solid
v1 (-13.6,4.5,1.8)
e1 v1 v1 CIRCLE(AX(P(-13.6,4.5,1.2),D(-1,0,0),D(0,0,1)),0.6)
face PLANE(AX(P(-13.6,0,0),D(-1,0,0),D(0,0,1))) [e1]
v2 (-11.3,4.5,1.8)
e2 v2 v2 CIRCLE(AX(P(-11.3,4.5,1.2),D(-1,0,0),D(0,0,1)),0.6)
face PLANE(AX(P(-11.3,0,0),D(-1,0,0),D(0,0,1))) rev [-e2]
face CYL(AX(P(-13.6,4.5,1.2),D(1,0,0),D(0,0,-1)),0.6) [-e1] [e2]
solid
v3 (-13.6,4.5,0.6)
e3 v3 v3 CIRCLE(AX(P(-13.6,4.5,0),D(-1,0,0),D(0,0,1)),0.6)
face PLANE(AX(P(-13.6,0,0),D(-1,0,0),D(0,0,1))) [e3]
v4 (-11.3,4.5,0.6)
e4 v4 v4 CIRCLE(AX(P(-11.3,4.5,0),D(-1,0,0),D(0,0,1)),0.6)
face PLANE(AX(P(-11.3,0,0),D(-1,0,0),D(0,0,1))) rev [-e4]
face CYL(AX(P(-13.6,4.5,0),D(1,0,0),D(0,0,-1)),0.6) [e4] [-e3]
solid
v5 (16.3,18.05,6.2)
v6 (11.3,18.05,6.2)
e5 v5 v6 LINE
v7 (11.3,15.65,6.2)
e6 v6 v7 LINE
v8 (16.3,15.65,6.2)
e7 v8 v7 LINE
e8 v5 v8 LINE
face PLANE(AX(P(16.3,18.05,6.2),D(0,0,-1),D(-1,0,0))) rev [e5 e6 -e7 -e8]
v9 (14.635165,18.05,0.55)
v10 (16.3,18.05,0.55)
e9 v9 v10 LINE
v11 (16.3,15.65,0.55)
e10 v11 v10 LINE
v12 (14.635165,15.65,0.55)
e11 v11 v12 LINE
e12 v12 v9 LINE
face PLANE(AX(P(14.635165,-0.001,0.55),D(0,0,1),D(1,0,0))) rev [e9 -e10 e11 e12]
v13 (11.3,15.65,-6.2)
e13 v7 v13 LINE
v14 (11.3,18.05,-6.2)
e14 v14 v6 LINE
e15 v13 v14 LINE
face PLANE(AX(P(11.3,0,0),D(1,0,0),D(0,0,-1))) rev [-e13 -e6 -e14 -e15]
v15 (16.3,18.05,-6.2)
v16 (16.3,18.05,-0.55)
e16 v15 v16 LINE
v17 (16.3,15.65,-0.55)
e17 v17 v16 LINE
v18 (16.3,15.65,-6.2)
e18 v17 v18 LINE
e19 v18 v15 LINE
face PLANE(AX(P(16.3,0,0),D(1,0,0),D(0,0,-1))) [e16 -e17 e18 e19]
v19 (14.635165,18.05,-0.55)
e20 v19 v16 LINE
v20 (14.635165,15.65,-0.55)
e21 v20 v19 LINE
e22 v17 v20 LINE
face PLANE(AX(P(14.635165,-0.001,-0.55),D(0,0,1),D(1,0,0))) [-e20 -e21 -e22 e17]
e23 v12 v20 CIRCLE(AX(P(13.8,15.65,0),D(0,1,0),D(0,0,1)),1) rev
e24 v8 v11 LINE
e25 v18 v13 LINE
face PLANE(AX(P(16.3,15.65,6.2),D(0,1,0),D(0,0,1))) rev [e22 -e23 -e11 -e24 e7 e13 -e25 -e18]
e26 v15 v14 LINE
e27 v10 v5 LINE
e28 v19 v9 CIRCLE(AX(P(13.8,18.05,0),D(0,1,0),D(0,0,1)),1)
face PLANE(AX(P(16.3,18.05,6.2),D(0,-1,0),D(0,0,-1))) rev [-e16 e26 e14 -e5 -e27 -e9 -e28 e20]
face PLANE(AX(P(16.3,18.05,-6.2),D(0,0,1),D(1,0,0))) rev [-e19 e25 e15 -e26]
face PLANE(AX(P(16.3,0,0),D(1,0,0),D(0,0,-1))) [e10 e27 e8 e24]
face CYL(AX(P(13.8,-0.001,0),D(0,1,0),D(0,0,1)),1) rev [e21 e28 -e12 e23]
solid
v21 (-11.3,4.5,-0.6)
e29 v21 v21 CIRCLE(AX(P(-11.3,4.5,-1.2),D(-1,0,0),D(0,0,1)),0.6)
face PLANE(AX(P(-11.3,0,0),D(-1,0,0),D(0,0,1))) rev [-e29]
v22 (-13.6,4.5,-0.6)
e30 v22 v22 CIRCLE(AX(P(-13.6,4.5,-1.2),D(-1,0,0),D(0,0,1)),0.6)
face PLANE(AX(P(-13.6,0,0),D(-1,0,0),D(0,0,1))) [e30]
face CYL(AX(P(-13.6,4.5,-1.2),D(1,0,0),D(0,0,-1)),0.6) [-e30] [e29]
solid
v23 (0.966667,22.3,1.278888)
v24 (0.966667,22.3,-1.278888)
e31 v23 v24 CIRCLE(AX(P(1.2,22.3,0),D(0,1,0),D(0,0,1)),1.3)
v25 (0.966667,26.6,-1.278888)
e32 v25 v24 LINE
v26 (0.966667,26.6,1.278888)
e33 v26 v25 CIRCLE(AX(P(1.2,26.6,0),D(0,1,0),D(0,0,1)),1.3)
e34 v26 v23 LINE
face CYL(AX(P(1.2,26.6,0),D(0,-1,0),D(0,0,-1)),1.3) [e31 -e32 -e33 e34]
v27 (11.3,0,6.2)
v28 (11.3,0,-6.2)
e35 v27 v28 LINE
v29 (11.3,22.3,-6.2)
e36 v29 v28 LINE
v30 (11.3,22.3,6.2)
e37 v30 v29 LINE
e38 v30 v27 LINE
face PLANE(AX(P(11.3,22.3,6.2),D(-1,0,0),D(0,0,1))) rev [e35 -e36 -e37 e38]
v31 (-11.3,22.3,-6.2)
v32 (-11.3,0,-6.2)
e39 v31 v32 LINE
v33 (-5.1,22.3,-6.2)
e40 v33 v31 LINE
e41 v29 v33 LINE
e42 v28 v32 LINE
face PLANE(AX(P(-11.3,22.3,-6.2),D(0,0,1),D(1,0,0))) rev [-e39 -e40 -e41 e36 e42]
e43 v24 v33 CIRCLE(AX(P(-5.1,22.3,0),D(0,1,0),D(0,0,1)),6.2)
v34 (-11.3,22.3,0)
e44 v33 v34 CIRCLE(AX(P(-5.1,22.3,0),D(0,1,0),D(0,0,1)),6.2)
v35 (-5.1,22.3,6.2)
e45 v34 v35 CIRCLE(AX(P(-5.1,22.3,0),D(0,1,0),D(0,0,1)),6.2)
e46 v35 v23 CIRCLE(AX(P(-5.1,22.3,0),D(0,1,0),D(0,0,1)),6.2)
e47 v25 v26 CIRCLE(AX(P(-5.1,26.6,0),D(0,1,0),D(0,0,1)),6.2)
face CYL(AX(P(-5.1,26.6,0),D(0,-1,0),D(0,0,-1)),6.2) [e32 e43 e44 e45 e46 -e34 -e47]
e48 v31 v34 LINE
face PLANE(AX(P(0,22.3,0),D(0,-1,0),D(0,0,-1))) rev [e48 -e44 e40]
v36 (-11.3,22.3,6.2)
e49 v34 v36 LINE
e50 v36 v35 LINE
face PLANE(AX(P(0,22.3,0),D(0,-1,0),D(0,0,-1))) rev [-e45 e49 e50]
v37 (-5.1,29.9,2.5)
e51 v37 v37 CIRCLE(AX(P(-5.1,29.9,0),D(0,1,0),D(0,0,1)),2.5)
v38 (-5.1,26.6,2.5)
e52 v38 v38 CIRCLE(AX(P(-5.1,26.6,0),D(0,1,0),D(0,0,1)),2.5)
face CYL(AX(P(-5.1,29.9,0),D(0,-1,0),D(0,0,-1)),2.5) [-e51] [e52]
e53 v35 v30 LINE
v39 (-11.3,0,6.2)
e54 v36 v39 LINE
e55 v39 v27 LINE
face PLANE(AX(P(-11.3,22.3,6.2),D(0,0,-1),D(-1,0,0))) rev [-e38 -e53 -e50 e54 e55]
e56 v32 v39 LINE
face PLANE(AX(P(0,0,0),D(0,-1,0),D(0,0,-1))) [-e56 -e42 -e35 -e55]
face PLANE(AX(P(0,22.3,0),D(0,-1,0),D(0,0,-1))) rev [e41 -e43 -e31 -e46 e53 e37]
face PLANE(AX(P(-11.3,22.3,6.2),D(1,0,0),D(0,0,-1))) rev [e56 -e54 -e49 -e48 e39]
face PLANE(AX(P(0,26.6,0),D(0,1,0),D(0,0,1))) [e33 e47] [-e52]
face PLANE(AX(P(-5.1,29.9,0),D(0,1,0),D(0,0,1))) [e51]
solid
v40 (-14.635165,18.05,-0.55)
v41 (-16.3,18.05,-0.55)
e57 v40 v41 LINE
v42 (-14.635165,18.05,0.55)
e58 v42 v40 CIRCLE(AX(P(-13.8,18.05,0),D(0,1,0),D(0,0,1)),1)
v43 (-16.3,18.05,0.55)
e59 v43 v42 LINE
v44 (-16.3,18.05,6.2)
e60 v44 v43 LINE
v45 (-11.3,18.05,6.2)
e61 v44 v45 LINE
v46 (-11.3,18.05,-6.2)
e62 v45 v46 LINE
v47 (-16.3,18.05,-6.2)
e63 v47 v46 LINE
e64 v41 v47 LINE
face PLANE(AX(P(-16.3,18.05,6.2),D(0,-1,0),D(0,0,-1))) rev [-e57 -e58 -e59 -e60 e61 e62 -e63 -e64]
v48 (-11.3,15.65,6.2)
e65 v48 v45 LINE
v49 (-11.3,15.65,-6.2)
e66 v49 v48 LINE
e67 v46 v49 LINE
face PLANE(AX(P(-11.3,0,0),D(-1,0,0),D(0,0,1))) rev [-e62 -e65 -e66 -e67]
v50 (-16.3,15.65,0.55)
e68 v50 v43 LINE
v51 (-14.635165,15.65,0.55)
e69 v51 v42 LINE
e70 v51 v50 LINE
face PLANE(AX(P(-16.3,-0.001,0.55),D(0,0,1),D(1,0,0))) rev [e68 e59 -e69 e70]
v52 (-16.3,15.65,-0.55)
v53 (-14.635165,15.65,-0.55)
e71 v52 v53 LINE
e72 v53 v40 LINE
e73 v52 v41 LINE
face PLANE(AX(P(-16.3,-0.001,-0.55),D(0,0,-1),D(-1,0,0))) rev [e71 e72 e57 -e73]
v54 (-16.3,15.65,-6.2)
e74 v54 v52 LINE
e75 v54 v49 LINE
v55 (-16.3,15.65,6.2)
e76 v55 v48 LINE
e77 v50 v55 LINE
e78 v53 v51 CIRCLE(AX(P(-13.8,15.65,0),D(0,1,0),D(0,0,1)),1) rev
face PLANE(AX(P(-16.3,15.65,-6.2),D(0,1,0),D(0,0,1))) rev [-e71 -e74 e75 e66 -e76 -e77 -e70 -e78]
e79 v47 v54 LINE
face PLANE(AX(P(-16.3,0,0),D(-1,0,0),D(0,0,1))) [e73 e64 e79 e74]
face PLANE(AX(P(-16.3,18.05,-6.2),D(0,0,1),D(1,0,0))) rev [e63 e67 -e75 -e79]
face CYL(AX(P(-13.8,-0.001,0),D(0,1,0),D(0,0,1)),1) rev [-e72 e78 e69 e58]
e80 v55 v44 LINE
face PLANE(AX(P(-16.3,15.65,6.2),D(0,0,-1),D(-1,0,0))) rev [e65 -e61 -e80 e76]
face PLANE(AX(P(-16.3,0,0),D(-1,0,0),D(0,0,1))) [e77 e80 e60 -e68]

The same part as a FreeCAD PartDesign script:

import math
import FreeCAD as App
import Part
import Sketcher

V = App.Vector
Q = App.Units.Quantity


def add_polygon(sketch, points):
    """Adds a closed chain of lines whose ends are joined by coincident constraints."""
    first, n = sketch.GeometryCount, len(points)
    for a, b in zip(points, points[1:] + points[:1]):
        sketch.addGeometry(Part.LineSegment(App.Vector(*a, 0), App.Vector(*b, 0)), False)
    for i in range(n):
        sketch.addConstraint(Sketcher.Constraint("Coincident", first + i, 2, first + (i + 1) % n, 1))

doc = App.newDocument("Part")
body = doc.addObject("PartDesign::Body", "Body")

# Sketch on XZ plane
sketch1 = body.newObject("Sketcher::SketchObject", "Sketch")
sketch1.AttachmentSupport = (doc.getObject("XZ_Plane"), [""])
sketch1.MapMode = "FlatFace"
add_polygon(sketch1, [(-11, -6), (-11, 6), (11, 6), (11, -6)])  # lines 0-3
sketch1.addConstraint([
    Sketcher.Constraint("Vertical", 0),
    Sketcher.Constraint("Horizontal", 1),
    Sketcher.Constraint("Vertical", 2),
    Sketcher.Constraint("Horizontal", 3),
    Sketcher.Constraint("Symmetric", 0, 2, 2, 2, -1, 1),
    Sketcher.Constraint("DistanceX", 1, 1, 1, 2, Q("22.6 mm")),
    Sketcher.Constraint("DistanceY", 0, 1, 0, 2, Q("12.4 mm")),
])
pad1 = body.newObject("PartDesign::Pad", "Pad")
pad1.Profile = sketch1
pad1.Length = 22.3
pad1.Reversed = True

# Sketch on XZ plane
sketch2 = body.newObject("Sketcher::SketchObject", "Sketch001")
sketch2.AttachmentSupport = (doc.getObject("XZ_Plane"), [""])
sketch2.MapMode = "FlatFace"
sketch2.AttachmentOffset = App.Placement(V(0, 0, -22.3), App.Rotation())
sketch2.addGeometry([
    Part.ArcOfCircle(Part.Circle(V(1.2, 0, 0), V(0, 0, 1), 1.3), math.radians(-100), math.radians(100)),
    Part.ArcOfCircle(Part.Circle(V(-5.1, 0, 0), V(0, 0, 1), 6.2), math.radians(12), math.radians(348)),
], False)
sketch2.addConstraint([
    Sketcher.Constraint("Coincident", 0, 1, 1, 2),
    Sketcher.Constraint("Coincident", 1, 1, 0, 2),
    Sketcher.Constraint("Symmetric", 0, 1, 1, 1, -1),
    Sketcher.Constraint("Radius", 0, Q("1.3 mm")),
    Sketcher.Constraint("Radius", 1, Q("6.2 mm")),
    Sketcher.Constraint("DistanceX", -1, 1, 0, 3, Q("1.2 mm")),
    Sketcher.Constraint("DistanceX", 1, 3, -1, 1, Q("5.1 mm")),
])
pad2 = body.newObject("PartDesign::Pad", "Pad001")
pad2.Profile = sketch2
pad2.Length = 4.3
pad2.Reversed = True

# Sketch on XZ plane
sketch3 = body.newObject("Sketcher::SketchObject", "Sketch002")
sketch3.AttachmentSupport = (doc.getObject("XZ_Plane"), [""])
sketch3.MapMode = "FlatFace"
sketch3.AttachmentOffset = App.Placement(V(0, 0, -26.6), App.Rotation())
sketch3.addGeometry(Part.Circle(V(-5.1, 0, 0), V(0, 0, 1), 2.5), False)
sketch3.addConstraint([
    Sketcher.Constraint("PointOnObject", 0, 3, -1),
    Sketcher.Constraint("Diameter", 0, Q("5 mm")),
    Sketcher.Constraint("DistanceX", 0, 3, -1, 1, Q("5.1 mm")),
])
pad3 = body.newObject("PartDesign::Pad", "Pad002")
pad3.Profile = sketch3
pad3.Length = 3.3
pad3.Reversed = True
body2 = doc.addObject("PartDesign::Body", "Body001")

# Sketch on YZ plane
sketch4 = body2.newObject("Sketcher::SketchObject", "Sketch003")
sketch4.AttachmentSupport = (doc.getObject("YZ_Plane001"), [""])
sketch4.MapMode = "FlatFace"
sketch4.AttachmentOffset = App.Placement(V(0, 0, 11.3), App.Rotation())
add_polygon(sketch4, [(18.1, 6.2), (15.7, 6.2), (15.7, -6.2), (18.1, -6.2)])  # lines 0-3
sketch4.addConstraint([
    Sketcher.Constraint("Horizontal", 0),
    Sketcher.Constraint("Vertical", 1),
    Sketcher.Constraint("Horizontal", 2),
    Sketcher.Constraint("Vertical", 3),
    Sketcher.Constraint("DistanceX", 0, 2, 0, 1, Q("2.4 mm")),
    Sketcher.Constraint("DistanceY", 1, 2, 1, 1, Q("12.4 mm")),
    Sketcher.Constraint("DistanceY", -1, 1, 0, 2, Q("6.2 mm")),
    Sketcher.Constraint("DistanceX", -1, 1, 0, 2, Q("15.65 mm")),
])
pad4 = body2.newObject("PartDesign::Pad", "Pad003")
pad4.Profile = sketch4
pad4.Length = 5

# Sketch on XZ plane
sketch5 = body2.newObject("Sketcher::SketchObject", "Sketch004")
sketch5.AttachmentSupport = (doc.getObject("XZ_Plane001"), [""])
sketch5.MapMode = "FlatFace"
sketch5.AttachmentOffset = App.Placement(V(0, 0, -18.05), App.Rotation())
sketch5.addGeometry([
    Part.LineSegment(V(16.3, -0.6, 0), V(14.6, -0.6, 0)),
    Part.ArcOfCircle(Part.Circle(V(13.8, 0, 0), V(0, 0, 1), 1), math.radians(33), math.radians(327)),
    Part.LineSegment(V(14.6, 0.6, 0), V(16.3, 0.6, 0)),
    Part.LineSegment(V(16.3, 0.6, 0), V(16.3, -0.6, 0)),
], False)
sketch5.addConstraint([
    Sketcher.Constraint("Coincident", 0, 2, 1, 2),
    Sketcher.Constraint("Coincident", 1, 1, 2, 1),
    Sketcher.Constraint("Coincident", 2, 2, 3, 1),
    Sketcher.Constraint("Coincident", 3, 2, 0, 1),
    Sketcher.Constraint("Horizontal", 0),
    Sketcher.Constraint("Horizontal", 2),
    Sketcher.Constraint("Vertical", 3),
    Sketcher.Constraint("Symmetric", 0, 2, 1, 1, -1),
    Sketcher.Constraint("Radius", 1, Q("1 mm")),
    Sketcher.Constraint("DistanceY", 3, 2, 3, 1, Q("1.1 mm")),
    Sketcher.Constraint("DistanceX", -1, 1, 1, 3, Q("13.8 mm")),
    Sketcher.Constraint("DistanceX", -1, 1, 2, 2, Q("16.3 mm")),
])
pocket1 = body2.newObject("PartDesign::Pocket", "Pocket")
pocket1.Profile = sketch5
pocket1.Length = 2.4
pocket1.Reversed = True
body3 = doc.addObject("PartDesign::Body", "Body002")

# Sketch on YZ plane
sketch6 = body3.newObject("Sketcher::SketchObject", "Sketch005")
sketch6.AttachmentSupport = (doc.getObject("YZ_Plane002"), [""])
sketch6.MapMode = "FlatFace"
sketch6.AttachmentOffset = App.Placement(V(0, 0, -11.3), App.Rotation())
add_polygon(sketch6, [(18.1, -6.2), (15.7, -6.2), (15.7, 6.2), (18.1, 6.2)])  # lines 0-3
sketch6.addConstraint([
    Sketcher.Constraint("Horizontal", 0),
    Sketcher.Constraint("Vertical", 1),
    Sketcher.Constraint("Horizontal", 2),
    Sketcher.Constraint("Vertical", 3),
    Sketcher.Constraint("DistanceX", 0, 2, 0, 1, Q("2.4 mm")),
    Sketcher.Constraint("DistanceY", 1, 1, 1, 2, Q("12.4 mm")),
    Sketcher.Constraint("DistanceY", 0, 2, -1, 1, Q("6.2 mm")),
    Sketcher.Constraint("DistanceX", -1, 1, 0, 2, Q("15.65 mm")),
])
pad5 = body3.newObject("PartDesign::Pad", "Pad004")
pad5.Profile = sketch6
pad5.Length = 5
pad5.Reversed = True

# Sketch on XZ plane
sketch7 = body3.newObject("Sketcher::SketchObject", "Sketch006")
sketch7.AttachmentSupport = (doc.getObject("XZ_Plane002"), [""])
sketch7.MapMode = "FlatFace"
sketch7.AttachmentOffset = App.Placement(V(0, 0, -18.05), App.Rotation())
sketch7.addGeometry([
    Part.LineSegment(V(-14.6, -0.6, 0), V(-16.3, -0.6, 0)),  # 0
    Part.LineSegment(V(-16.3, -0.6, 0), V(-16.3, 0.6, 0)),  # 1
    Part.LineSegment(V(-16.3, 0.6, 0), V(-14.6, 0.6, 0)),  # 2
    Part.ArcOfCircle(Part.Circle(V(-13.8, 0, 0), V(0, 0, 1), 1), math.radians(-147), math.radians(147)),  # 3
    Part.LineSegment(V(14.6, 0.6, 0), V(16.3, 0.6, 0)),  # 4
    Part.LineSegment(V(16.3, 0.6, 0), V(16.3, -0.6, 0)),  # 5
    Part.LineSegment(V(16.3, -0.6, 0), V(14.6, -0.6, 0)),  # 6
    Part.ArcOfCircle(Part.Circle(V(13.8, 0, 0), V(0, 0, 1), 1), math.radians(33), math.radians(327)),  # 7
], False)
sketch7.addConstraint([
    Sketcher.Constraint("Coincident", 0, 2, 1, 1),
    Sketcher.Constraint("Coincident", 1, 2, 2, 1),
    Sketcher.Constraint("Coincident", 2, 2, 3, 2),
    Sketcher.Constraint("Coincident", 3, 1, 0, 1),
    Sketcher.Constraint("Coincident", 4, 2, 5, 1),
    Sketcher.Constraint("Coincident", 5, 2, 6, 1),
    Sketcher.Constraint("Coincident", 6, 2, 7, 2),
    Sketcher.Constraint("Coincident", 7, 1, 4, 1),
    Sketcher.Constraint("Horizontal", 0),
    Sketcher.Constraint("Vertical", 1),
    Sketcher.Constraint("Horizontal", 2),
    Sketcher.Constraint("Horizontal", 4),
    Sketcher.Constraint("Vertical", 5),
    Sketcher.Constraint("Horizontal", 6),
    Sketcher.Constraint("Equal", 3, 7),
    Sketcher.Constraint("Symmetric", 3, 3, 7, 3, -1, 1),
    Sketcher.Constraint("Symmetric", 0, 2, 4, 2, -1, 1),
    Sketcher.Constraint("Symmetric", 3, 1, 6, 2, -2),
    Sketcher.Constraint("Horizontal", 2, 2, 4, 2),
    Sketcher.Constraint("Radius", 3, Q("1 mm")),
    Sketcher.Constraint("DistanceY", 1, 1, 1, 2, Q("1.1 mm")),
    Sketcher.Constraint("DistanceX", 3, 3, -1, 1, Q("13.8 mm")),
    Sketcher.Constraint("DistanceX", 0, 2, -1, 1, Q("16.3 mm")),
])
pocket2 = body3.newObject("PartDesign::Pocket", "Pocket001")
pocket2.Profile = sketch7
pocket2.Length = 2.4
pocket2.Reversed = True
body4 = doc.addObject("PartDesign::Body", "Body003")

# Sketch on YZ plane
sketch8 = body4.newObject("Sketcher::SketchObject", "Sketch007")
sketch8.AttachmentSupport = (doc.getObject("YZ_Plane003"), [""])
sketch8.MapMode = "FlatFace"
sketch8.AttachmentOffset = App.Placement(V(0, 0, -11.3), App.Rotation())
sketch8.addGeometry(Part.Circle(V(4.5, 0, 0), V(0, 0, 1), 0.6), False)
sketch8.addConstraint([
    Sketcher.Constraint("PointOnObject", 0, 3, -1),
    Sketcher.Constraint("Diameter", 0, Q("1.2 mm")),
    Sketcher.Constraint("DistanceX", -1, 1, 0, 3, Q("4.5 mm")),
])
pad6 = body4.newObject("PartDesign::Pad", "Pad005")
pad6.Profile = sketch8
pad6.Length = 2.3
pad6.Reversed = True
body5 = doc.addObject("PartDesign::Body", "Body004")

# Sketch on YZ plane
sketch9 = body5.newObject("Sketcher::SketchObject", "Sketch008")
sketch9.AttachmentSupport = (doc.getObject("YZ_Plane004"), [""])
sketch9.MapMode = "FlatFace"
sketch9.AttachmentOffset = App.Placement(V(0, 0, -11.3), App.Rotation())
sketch9.addGeometry(Part.Circle(V(4.5, -1.2, 0), V(0, 0, 1), 0.6), False)
sketch9.addConstraint([
    Sketcher.Constraint("Diameter", 0, Q("1.2 mm")),
    Sketcher.Constraint("DistanceX", -1, 1, 0, 3, Q("4.5 mm")),
    Sketcher.Constraint("DistanceY", 0, 3, -1, 1, Q("1.2 mm")),
])
pad7 = body5.newObject("PartDesign::Pad", "Pad006")
pad7.Profile = sketch9
pad7.Length = 2.3
pad7.Reversed = True
body6 = doc.addObject("PartDesign::Body", "Body005")

# Sketch on YZ plane
sketch10 = body6.newObject("Sketcher::SketchObject", "Sketch009")
sketch10.AttachmentSupport = (doc.getObject("YZ_Plane005"), [""])
sketch10.MapMode = "FlatFace"
sketch10.AttachmentOffset = App.Placement(V(0, 0, -11.3), App.Rotation())
sketch10.addGeometry(Part.Circle(V(4.5, 1.2, 0), V(0, 0, 1), 0.6), False)
sketch10.addConstraint([
    Sketcher.Constraint("Diameter", 0, Q("1.2 mm")),
    Sketcher.Constraint("DistanceX", -1, 1, 0, 3, Q("4.5 mm")),
    Sketcher.Constraint("DistanceY", -1, 1, 0, 3, Q("1.2 mm")),
])
pad8 = body6.newObject("PartDesign::Pad", "Pad007")
pad8.Profile = sketch10
pad8.Length = 2.3
pad8.Reversed = True

doc.recompute()
